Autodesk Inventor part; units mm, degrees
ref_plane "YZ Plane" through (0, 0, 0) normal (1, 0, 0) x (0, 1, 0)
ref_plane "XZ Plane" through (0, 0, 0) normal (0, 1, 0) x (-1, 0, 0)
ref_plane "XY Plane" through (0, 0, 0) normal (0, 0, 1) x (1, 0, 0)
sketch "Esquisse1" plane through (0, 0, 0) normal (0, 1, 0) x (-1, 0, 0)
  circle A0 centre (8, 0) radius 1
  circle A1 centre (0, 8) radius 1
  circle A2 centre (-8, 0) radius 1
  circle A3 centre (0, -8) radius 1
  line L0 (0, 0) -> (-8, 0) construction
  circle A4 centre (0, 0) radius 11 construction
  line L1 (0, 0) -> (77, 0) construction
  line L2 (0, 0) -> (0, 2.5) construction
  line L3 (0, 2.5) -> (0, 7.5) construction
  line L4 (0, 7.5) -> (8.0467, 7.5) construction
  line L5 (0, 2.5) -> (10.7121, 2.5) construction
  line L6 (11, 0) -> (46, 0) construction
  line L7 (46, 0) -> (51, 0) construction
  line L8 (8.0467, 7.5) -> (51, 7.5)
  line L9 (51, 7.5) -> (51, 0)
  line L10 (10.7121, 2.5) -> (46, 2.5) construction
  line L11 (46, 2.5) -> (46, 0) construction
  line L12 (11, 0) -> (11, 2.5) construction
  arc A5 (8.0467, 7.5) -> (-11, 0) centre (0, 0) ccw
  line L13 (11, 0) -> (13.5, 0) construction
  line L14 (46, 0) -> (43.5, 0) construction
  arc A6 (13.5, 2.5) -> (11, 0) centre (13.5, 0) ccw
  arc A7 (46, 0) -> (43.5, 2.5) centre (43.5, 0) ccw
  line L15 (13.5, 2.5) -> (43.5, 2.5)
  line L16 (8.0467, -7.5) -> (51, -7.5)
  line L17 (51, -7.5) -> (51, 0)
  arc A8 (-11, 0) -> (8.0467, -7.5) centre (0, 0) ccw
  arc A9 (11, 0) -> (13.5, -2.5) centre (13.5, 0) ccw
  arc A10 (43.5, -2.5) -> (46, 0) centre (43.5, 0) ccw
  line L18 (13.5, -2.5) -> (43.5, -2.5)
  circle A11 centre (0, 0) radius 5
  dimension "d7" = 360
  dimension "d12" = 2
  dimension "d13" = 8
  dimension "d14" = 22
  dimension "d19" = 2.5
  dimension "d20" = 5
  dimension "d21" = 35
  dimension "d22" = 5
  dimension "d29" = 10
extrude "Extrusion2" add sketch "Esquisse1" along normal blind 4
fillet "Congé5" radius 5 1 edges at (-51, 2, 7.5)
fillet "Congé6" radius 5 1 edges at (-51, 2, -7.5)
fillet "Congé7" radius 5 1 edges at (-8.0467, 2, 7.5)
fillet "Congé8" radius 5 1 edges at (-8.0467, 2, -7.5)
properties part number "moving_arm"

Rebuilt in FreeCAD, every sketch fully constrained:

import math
import FreeCAD as App
import Part
import Sketcher
from FreeCAD import Vector


def edges_at(feature, points):
    """Names of the edges that pass closest to the given points."""
    edges = feature.Shape.Edges
    near = lambda p: min(range(len(edges)), key=lambda i: edges[i].distToShape(Part.Vertex(*p))[0])
    return sorted({f"Edge{near(p) + 1}" for p in points})

doc = App.newDocument("Part")
body = doc.addObject("PartDesign::Body", "Body")

sketch1 = body.newObject("Sketcher::SketchObject", "Sketch")
sketch1.AttachmentSupport = (doc.getObject("XZ_Plane"), [""])
sketch1.MapMode = "FlatFace"
sketch1.addGeometry([
    Part.LineSegment(Vector(-51, 7.5, 0), Vector(-8, 7.5, 0)),
    Part.ArcOfCircle(Part.Circle(Vector(0, 0, 0), Vector(0, 0, 1), 11), math.radians(0), math.radians(137)),
    Part.ArcOfCircle(Part.Circle(Vector(0, 0, 0), Vector(0, 0, 1), 11), math.radians(-137), math.radians(0)),
    Part.LineSegment(Vector(-8, -7.5, 0), Vector(-51, -7.5, 0)),
    Part.LineSegment(Vector(-51, -7.5, 0), Vector(-51, 7.5, 0)),
    Part.Circle(Vector(0, -8, 0), Vector(0, 0, 1), 1),
    Part.Circle(Vector(8, 0, 0), Vector(0, 0, 1), 1),
    Part.Circle(Vector(0, 0, 0), Vector(0, 0, 1), 5),
    Part.Circle(Vector(-8, 0, 0), Vector(0, 0, 1), 1),
    Part.Circle(Vector(0, 8, 0), Vector(0, 0, 1), 1),
    Part.ArcOfCircle(Part.Circle(Vector(-13.5, 0, 0), Vector(0, 0, 1), 2.5), math.radians(-90), math.radians(90)),
    Part.LineSegment(Vector(-13.5, 2.5, 0), Vector(-43.5, 2.5, 0)),
    Part.ArcOfCircle(Part.Circle(Vector(-43.5, 0, 0), Vector(0, 0, 1), 2.5), math.radians(90), math.radians(270)),
    Part.LineSegment(Vector(-43.5, -2.5, 0), Vector(-13.5, -2.5, 0)),
], False)
sketch1.addConstraint([
    Sketcher.Constraint("Coincident", 0, 2, 1, 2),
    Sketcher.Constraint("Tangent", 1, 1, 2, 2),
    Sketcher.Constraint("Coincident", 2, 1, 3, 1),
    Sketcher.Constraint("Coincident", 3, 2, 4, 1),
    Sketcher.Constraint("Coincident", 4, 2, 0, 1),
    Sketcher.Constraint("Tangent", 10, 2, 11, 1),
    Sketcher.Constraint("Tangent", 11, 2, 12, 1),
    Sketcher.Constraint("Tangent", 12, 2, 13, 1),
    Sketcher.Constraint("Tangent", 13, 2, 10, 1),
    Sketcher.Constraint("Horizontal", 0),
    Sketcher.Constraint("Horizontal", 3),
    Sketcher.Constraint("Vertical", 4),
    Sketcher.Constraint("Horizontal", 11),
    Sketcher.Constraint("Horizontal", 13),
    Sketcher.Constraint("Coincident", 1, 3, -1, 1),
    Sketcher.Constraint("Coincident", 7, 3, -1, 1),
    Sketcher.Constraint("Equal", 1, 2),
    Sketcher.Constraint("Equal", 5, 6),
    Sketcher.Constraint("Equal", 6, 8),
    Sketcher.Constraint("Equal", 8, 9),
    Sketcher.Constraint("Symmetric", 6, 3, 8, 3, -1, 1),
    Sketcher.Constraint("Symmetric", 5, 3, 9, 3, -1, 1),
    Sketcher.Constraint("PointOnObject", 5, 3, -2),
    Sketcher.Constraint("PointOnObject", 6, 3, -1),
    Sketcher.Constraint("PointOnObject", 10, 3, -1),
    Sketcher.Constraint("PointOnObject", 1, 1, -1),
    Sketcher.Constraint("Vertical", 0, 2, 2, 1),
    Sketcher.Constraint("Diameter", 5, 2.0),
    Sketcher.Constraint("Diameter", 7, 10.0),
    Sketcher.Constraint("Radius", 1, 11.0),
    Sketcher.Constraint("Radius", 10, 2.5),
    Sketcher.Constraint("DistanceY", 5, 3, -1, 1, 8.0),
    Sketcher.Constraint("DistanceX", -1, 1, 6, 3, 8.0),
    Sketcher.Constraint("DistanceY", 10, 2, 0, 2, 5.0),
    Sketcher.Constraint("DistanceX", 11, 2, 11, 1, 30.0),
    Sketcher.Constraint("DistanceX", 3, 2, -1, 1, 51.0),
    Sketcher.Constraint("DistanceX", 10, 3, -1, 1, 13.5),
])
pad1 = body.newObject("PartDesign::Pad", "Pad")
pad1.Profile = sketch1
pad1.Length = 4
pad1.Reversed = True
doc.recompute()

fillet = body.newObject("PartDesign::Fillet", "Fillet")
fillet.Base = (pad1, edges_at(pad1, [(-51, 2, 7.5)]))
fillet.Radius = 5
doc.recompute()

fillet2 = body.newObject("PartDesign::Fillet", "Fillet001")
fillet2.Base = (fillet, edges_at(fillet, [(-51, 2, -7.5)]))
fillet2.Radius = 5
doc.recompute()

fillet3 = body.newObject("PartDesign::Fillet", "Fillet002")
fillet3.Base = (fillet2, edges_at(fillet2, [(-8.047, 2, 7.5)]))
fillet3.Radius = 5
doc.recompute()

fillet4 = body.newObject("PartDesign::Fillet", "Fillet003")
fillet4.Base = (fillet3, edges_at(fillet3, [(-8.047, 2, -7.5)]))
fillet4.Radius = 5

doc.recompute()
